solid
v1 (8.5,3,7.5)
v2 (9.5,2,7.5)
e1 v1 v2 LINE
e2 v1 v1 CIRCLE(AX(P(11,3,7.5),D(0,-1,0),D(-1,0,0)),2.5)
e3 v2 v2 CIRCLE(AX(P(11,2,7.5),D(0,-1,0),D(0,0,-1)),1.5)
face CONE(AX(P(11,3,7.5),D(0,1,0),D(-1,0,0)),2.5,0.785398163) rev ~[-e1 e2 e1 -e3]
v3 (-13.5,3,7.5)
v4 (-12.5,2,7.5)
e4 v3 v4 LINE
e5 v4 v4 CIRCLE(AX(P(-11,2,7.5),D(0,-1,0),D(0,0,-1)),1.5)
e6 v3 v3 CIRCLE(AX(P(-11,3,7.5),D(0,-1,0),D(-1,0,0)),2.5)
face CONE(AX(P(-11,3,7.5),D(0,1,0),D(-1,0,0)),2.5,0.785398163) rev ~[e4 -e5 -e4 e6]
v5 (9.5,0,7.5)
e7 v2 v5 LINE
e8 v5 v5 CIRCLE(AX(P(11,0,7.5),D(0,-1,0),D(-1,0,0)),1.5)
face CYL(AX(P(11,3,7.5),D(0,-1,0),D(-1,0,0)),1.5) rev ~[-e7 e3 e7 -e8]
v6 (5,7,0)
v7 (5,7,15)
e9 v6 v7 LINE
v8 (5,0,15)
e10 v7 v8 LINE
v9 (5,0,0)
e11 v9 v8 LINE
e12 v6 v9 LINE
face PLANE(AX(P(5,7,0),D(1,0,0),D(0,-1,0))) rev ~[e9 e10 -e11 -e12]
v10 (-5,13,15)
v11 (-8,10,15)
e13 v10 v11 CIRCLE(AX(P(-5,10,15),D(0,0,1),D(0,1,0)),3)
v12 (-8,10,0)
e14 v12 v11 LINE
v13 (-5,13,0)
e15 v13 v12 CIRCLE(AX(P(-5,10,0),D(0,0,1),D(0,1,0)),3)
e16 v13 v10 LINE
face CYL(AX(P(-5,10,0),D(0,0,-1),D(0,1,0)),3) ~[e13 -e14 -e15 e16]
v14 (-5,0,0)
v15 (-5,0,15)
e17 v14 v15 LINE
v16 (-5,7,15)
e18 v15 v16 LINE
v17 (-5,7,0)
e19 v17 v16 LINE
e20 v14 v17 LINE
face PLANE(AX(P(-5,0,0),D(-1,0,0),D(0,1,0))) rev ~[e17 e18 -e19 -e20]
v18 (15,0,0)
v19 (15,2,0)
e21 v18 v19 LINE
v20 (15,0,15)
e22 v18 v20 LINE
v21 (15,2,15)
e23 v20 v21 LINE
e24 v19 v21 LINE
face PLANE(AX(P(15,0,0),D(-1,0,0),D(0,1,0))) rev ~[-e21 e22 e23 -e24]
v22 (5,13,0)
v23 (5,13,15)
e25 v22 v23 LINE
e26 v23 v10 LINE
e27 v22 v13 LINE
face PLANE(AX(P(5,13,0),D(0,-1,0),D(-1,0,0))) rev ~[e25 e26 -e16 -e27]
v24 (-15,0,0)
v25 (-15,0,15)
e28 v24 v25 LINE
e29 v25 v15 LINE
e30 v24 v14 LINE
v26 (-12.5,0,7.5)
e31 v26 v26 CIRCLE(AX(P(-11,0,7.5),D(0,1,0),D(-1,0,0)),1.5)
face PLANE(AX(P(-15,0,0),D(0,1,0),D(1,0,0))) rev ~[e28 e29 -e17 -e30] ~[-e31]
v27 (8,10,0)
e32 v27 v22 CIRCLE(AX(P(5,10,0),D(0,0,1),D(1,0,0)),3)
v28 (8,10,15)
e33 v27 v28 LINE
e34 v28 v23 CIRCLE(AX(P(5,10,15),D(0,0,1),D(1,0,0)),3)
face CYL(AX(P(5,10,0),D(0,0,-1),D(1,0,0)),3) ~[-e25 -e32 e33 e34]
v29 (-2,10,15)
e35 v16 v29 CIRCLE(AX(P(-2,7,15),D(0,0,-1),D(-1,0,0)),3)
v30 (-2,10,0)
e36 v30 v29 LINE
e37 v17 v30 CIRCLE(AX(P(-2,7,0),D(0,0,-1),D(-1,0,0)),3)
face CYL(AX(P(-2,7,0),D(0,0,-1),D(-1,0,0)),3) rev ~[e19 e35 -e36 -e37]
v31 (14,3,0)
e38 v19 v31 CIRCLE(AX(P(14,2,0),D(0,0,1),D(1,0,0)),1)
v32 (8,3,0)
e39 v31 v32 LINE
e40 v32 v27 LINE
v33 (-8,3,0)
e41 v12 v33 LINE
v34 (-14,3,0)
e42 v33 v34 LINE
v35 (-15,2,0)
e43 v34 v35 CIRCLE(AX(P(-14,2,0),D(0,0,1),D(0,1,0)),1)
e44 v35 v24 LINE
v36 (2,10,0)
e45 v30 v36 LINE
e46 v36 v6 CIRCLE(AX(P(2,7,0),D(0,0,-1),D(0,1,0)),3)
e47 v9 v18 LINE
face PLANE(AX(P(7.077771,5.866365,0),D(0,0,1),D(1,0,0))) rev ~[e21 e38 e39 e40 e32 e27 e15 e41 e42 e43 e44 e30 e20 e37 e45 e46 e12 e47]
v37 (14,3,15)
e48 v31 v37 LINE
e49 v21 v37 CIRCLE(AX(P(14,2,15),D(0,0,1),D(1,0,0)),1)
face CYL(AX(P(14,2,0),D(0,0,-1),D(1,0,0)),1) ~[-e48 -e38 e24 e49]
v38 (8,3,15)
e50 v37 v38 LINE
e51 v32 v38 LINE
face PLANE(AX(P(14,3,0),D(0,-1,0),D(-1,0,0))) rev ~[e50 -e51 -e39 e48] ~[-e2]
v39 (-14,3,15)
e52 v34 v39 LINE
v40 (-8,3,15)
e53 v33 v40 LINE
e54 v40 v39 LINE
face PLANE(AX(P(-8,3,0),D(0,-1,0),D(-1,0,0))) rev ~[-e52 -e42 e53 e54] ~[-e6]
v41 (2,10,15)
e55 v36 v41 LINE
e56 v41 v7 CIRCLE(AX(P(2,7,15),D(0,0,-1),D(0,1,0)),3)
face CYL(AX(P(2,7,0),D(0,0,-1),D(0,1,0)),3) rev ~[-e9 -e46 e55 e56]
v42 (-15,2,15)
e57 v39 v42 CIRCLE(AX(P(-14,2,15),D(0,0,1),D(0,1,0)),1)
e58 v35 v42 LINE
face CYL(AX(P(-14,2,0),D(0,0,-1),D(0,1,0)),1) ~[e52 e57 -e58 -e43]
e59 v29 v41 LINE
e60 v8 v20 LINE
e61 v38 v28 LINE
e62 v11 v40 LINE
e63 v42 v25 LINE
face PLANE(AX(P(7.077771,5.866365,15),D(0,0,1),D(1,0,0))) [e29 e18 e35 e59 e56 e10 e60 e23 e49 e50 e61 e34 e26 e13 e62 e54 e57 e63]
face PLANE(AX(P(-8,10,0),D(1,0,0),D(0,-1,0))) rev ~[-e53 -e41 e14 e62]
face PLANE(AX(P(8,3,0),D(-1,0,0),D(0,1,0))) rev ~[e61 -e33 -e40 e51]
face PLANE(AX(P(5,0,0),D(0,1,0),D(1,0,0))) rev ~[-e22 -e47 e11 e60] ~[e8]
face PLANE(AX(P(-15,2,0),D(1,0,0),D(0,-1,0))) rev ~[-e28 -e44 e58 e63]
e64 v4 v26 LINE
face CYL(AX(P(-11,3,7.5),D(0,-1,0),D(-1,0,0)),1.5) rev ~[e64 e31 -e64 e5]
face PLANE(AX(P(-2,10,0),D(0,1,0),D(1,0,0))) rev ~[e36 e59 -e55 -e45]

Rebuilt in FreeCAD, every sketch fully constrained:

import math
import FreeCAD as App
import Part
import Sketcher

V = App.Vector

doc = App.newDocument("Part")
body = doc.addObject("PartDesign::Body", "Body")

# Sketch on XY plane
sketch1 = body.newObject("Sketcher::SketchObject", "Sketch")
sketch1.AttachmentSupport = (doc.getObject("XY_Plane"), [""])
sketch1.MapMode = "FlatFace"
sketch1.addGeometry(Part.LineSegment(V(5, 7, 0), V(5, 0, 0)), False)
sketch1.addGeometry(Part.LineSegment(V(5, 0, 0), V(15, 0, 0)), False)
sketch1.addGeometry(Part.LineSegment(V(15, 0, 0), V(15, 2, 0)), False)
sketch1.addGeometry(Part.ArcOfCircle(Part.Circle(V(14, 2, 0), V(0, 0, 1), 1), math.radians(0), math.radians(90)), False)
sketch1.addGeometry(Part.LineSegment(V(14, 3, 0), V(8, 3, 0)), False)
sketch1.addGeometry(Part.LineSegment(V(8, 3, 0), V(8, 10, 0)), False)
sketch1.addGeometry(Part.ArcOfCircle(Part.Circle(V(5, 10, 0), V(0, 0, 1), 3), math.radians(0), math.radians(90)), False)
sketch1.addGeometry(Part.LineSegment(V(5, 13, 0), V(-5, 13, 0)), False)
sketch1.addGeometry(Part.ArcOfCircle(Part.Circle(V(-5, 10, 0), V(0, 0, 1), 3), math.radians(90), math.radians(180)), False)
sketch1.addGeometry(Part.LineSegment(V(-8, 10, 0), V(-8, 3, 0)), False)
sketch1.addGeometry(Part.LineSegment(V(-8, 3, 0), V(-14, 3, 0)), False)
sketch1.addGeometry(Part.ArcOfCircle(Part.Circle(V(-14, 2, 0), V(0, 0, 1), 1), math.radians(90), math.radians(180)), False)
sketch1.addGeometry(Part.LineSegment(V(-15, 2, 0), V(-15, 0, 0)), False)
sketch1.addGeometry(Part.LineSegment(V(-15, 0, 0), V(-5, 0, 0)), False)
sketch1.addGeometry(Part.LineSegment(V(-5, 0, 0), V(-5, 7, 0)), False)
sketch1.addGeometry(Part.ArcOfCircle(Part.Circle(V(-2, 7, 0), V(0, 0, 1), 3), math.radians(90), math.radians(180)), False)
sketch1.addGeometry(Part.LineSegment(V(-2, 10, 0), V(2, 10, 0)), False)
sketch1.addGeometry(Part.ArcOfCircle(Part.Circle(V(2, 7, 0), V(0, 0, 1), 3), math.radians(0), math.radians(90)), False)
sketch1.addConstraint(Sketcher.Constraint("Coincident", 0, 2, 1, 1))
sketch1.addConstraint(Sketcher.Constraint("Coincident", 1, 2, 2, 1))
sketch1.addConstraint(Sketcher.Constraint("Tangent", 2, 2, 3, 1))
sketch1.addConstraint(Sketcher.Constraint("Tangent", 3, 2, 4, 1))
sketch1.addConstraint(Sketcher.Constraint("Coincident", 4, 2, 5, 1))
sketch1.addConstraint(Sketcher.Constraint("Tangent", 5, 2, 6, 1))
sketch1.addConstraint(Sketcher.Constraint("Tangent", 6, 2, 7, 1))
sketch1.addConstraint(Sketcher.Constraint("Tangent", 7, 2, 8, 1))
sketch1.addConstraint(Sketcher.Constraint("Tangent", 8, 2, 9, 1))
sketch1.addConstraint(Sketcher.Constraint("Coincident", 9, 2, 10, 1))
sketch1.addConstraint(Sketcher.Constraint("Tangent", 10, 2, 11, 1))
sketch1.addConstraint(Sketcher.Constraint("Tangent", 11, 2, 12, 1))
sketch1.addConstraint(Sketcher.Constraint("Coincident", 12, 2, 13, 1))
sketch1.addConstraint(Sketcher.Constraint("Coincident", 13, 2, 14, 1))
sketch1.addConstraint(Sketcher.Constraint("Tangent", 14, 2, 15, 2))
sketch1.addConstraint(Sketcher.Constraint("Tangent", 15, 1, 16, 1))
sketch1.addConstraint(Sketcher.Constraint("Tangent", 16, 2, 17, 2))
sketch1.addConstraint(Sketcher.Constraint("Tangent", 17, 1, 0, 1))
sketch1.addConstraint(Sketcher.Constraint("Vertical", 0))
sketch1.addConstraint(Sketcher.Constraint("Horizontal", 1))
sketch1.addConstraint(Sketcher.Constraint("Vertical", 2))
sketch1.addConstraint(Sketcher.Constraint("Horizontal", 4))
sketch1.addConstraint(Sketcher.Constraint("Vertical", 5))
sketch1.addConstraint(Sketcher.Constraint("Horizontal", 7))
sketch1.addConstraint(Sketcher.Constraint("Vertical", 9))
sketch1.addConstraint(Sketcher.Constraint("Horizontal", 10))
sketch1.addConstraint(Sketcher.Constraint("Vertical", 12))
sketch1.addConstraint(Sketcher.Constraint("Horizontal", 13))
sketch1.addConstraint(Sketcher.Constraint("Vertical", 14))
sketch1.addConstraint(Sketcher.Constraint("Horizontal", 16))
sketch1.addConstraint(Sketcher.Constraint("Equal", 6, 8))
sketch1.addConstraint(Sketcher.Constraint("Equal", 3, 11))
sketch1.addConstraint(Sketcher.Constraint("Equal", 8, 15))
sketch1.addConstraint(Sketcher.Constraint("Equal", 15, 17))
sketch1.addConstraint(Sketcher.Constraint("Symmetric", 1, 2, 12, 2, -1, 1))
sketch1.addConstraint(Sketcher.Constraint("Symmetric", 4, 2, 9, 2, -2))
sketch1.addConstraint(Sketcher.Constraint("Symmetric", 0, 2, 13, 2, -2))
sketch1.addConstraint(Sketcher.Constraint("Horizontal", 8, 2, 15, 1))
sketch1.addConstraint(Sketcher.Constraint("Vertical", 6, 3, 0, 2))
sketch1.addConstraint(Sketcher.Constraint("Equal", 1, 7))
sketch1.addConstraint(Sketcher.Constraint("Equal", 0, 5))
sketch1.addConstraint(Sketcher.Constraint("Radius", 3, 1.0))
sketch1.addConstraint(Sketcher.Constraint("Radius", 6, 3.0))
sketch1.addConstraint(Sketcher.Constraint("DistanceX", 1, 1, 1, 2, 10.0))
sketch1.addConstraint(Sketcher.Constraint("DistanceY", 0, 2, 0, 1, 7.0))
pad1 = body.newObject("PartDesign::Pad", "Pad")
pad1.Profile = sketch1
pad1.Length = 15

# Sketch on XZ plane
sketch2 = body.newObject("Sketcher::SketchObject", "Sketch001")
sketch2.AttachmentSupport = (doc.getObject("XZ_Plane"), [""])
sketch2.MapMode = "FlatFace"
sketch2.AttachmentOffset = App.Placement(V(0, 0, -3), App.Rotation())
sketch2.addGeometry(Part.Circle(V(11, 7.5, 0), V(0, 0, 1), 1.5), False)
sketch2.addGeometry(Part.Circle(V(-11, 7.5, 0), V(0, 0, 1), 1.5), False)
sketch2.addConstraint(Sketcher.Constraint("Equal", 0, 1))
sketch2.addConstraint(Sketcher.Constraint("Symmetric", 0, 3, 1, 3, -2))
sketch2.addConstraint(Sketcher.Constraint("Diameter", 0, 3.0))
sketch2.addConstraint(Sketcher.Constraint("DistanceX", -1, 1, 0, 3, 11.0))
sketch2.addConstraint(Sketcher.Constraint("DistanceY", -1, 1, 0, 3, 7.5))
doc.recompute()
hole = body.newObject("PartDesign::Hole", "Hole")
hole.Profile = sketch2
hole.ThreadType = "None"
hole.Diameter = 3
hole.DepthType = "Dimension"
hole.Depth = 3
hole.DrillPoint = "Angled"
hole.DrillPointAngle = 118
hole.HoleCutType = "Countersink"
hole.HoleCutDiameter = 5
hole.HoleCutCountersinkAngle = 90
hole.Reversed = True

doc.recompute()
